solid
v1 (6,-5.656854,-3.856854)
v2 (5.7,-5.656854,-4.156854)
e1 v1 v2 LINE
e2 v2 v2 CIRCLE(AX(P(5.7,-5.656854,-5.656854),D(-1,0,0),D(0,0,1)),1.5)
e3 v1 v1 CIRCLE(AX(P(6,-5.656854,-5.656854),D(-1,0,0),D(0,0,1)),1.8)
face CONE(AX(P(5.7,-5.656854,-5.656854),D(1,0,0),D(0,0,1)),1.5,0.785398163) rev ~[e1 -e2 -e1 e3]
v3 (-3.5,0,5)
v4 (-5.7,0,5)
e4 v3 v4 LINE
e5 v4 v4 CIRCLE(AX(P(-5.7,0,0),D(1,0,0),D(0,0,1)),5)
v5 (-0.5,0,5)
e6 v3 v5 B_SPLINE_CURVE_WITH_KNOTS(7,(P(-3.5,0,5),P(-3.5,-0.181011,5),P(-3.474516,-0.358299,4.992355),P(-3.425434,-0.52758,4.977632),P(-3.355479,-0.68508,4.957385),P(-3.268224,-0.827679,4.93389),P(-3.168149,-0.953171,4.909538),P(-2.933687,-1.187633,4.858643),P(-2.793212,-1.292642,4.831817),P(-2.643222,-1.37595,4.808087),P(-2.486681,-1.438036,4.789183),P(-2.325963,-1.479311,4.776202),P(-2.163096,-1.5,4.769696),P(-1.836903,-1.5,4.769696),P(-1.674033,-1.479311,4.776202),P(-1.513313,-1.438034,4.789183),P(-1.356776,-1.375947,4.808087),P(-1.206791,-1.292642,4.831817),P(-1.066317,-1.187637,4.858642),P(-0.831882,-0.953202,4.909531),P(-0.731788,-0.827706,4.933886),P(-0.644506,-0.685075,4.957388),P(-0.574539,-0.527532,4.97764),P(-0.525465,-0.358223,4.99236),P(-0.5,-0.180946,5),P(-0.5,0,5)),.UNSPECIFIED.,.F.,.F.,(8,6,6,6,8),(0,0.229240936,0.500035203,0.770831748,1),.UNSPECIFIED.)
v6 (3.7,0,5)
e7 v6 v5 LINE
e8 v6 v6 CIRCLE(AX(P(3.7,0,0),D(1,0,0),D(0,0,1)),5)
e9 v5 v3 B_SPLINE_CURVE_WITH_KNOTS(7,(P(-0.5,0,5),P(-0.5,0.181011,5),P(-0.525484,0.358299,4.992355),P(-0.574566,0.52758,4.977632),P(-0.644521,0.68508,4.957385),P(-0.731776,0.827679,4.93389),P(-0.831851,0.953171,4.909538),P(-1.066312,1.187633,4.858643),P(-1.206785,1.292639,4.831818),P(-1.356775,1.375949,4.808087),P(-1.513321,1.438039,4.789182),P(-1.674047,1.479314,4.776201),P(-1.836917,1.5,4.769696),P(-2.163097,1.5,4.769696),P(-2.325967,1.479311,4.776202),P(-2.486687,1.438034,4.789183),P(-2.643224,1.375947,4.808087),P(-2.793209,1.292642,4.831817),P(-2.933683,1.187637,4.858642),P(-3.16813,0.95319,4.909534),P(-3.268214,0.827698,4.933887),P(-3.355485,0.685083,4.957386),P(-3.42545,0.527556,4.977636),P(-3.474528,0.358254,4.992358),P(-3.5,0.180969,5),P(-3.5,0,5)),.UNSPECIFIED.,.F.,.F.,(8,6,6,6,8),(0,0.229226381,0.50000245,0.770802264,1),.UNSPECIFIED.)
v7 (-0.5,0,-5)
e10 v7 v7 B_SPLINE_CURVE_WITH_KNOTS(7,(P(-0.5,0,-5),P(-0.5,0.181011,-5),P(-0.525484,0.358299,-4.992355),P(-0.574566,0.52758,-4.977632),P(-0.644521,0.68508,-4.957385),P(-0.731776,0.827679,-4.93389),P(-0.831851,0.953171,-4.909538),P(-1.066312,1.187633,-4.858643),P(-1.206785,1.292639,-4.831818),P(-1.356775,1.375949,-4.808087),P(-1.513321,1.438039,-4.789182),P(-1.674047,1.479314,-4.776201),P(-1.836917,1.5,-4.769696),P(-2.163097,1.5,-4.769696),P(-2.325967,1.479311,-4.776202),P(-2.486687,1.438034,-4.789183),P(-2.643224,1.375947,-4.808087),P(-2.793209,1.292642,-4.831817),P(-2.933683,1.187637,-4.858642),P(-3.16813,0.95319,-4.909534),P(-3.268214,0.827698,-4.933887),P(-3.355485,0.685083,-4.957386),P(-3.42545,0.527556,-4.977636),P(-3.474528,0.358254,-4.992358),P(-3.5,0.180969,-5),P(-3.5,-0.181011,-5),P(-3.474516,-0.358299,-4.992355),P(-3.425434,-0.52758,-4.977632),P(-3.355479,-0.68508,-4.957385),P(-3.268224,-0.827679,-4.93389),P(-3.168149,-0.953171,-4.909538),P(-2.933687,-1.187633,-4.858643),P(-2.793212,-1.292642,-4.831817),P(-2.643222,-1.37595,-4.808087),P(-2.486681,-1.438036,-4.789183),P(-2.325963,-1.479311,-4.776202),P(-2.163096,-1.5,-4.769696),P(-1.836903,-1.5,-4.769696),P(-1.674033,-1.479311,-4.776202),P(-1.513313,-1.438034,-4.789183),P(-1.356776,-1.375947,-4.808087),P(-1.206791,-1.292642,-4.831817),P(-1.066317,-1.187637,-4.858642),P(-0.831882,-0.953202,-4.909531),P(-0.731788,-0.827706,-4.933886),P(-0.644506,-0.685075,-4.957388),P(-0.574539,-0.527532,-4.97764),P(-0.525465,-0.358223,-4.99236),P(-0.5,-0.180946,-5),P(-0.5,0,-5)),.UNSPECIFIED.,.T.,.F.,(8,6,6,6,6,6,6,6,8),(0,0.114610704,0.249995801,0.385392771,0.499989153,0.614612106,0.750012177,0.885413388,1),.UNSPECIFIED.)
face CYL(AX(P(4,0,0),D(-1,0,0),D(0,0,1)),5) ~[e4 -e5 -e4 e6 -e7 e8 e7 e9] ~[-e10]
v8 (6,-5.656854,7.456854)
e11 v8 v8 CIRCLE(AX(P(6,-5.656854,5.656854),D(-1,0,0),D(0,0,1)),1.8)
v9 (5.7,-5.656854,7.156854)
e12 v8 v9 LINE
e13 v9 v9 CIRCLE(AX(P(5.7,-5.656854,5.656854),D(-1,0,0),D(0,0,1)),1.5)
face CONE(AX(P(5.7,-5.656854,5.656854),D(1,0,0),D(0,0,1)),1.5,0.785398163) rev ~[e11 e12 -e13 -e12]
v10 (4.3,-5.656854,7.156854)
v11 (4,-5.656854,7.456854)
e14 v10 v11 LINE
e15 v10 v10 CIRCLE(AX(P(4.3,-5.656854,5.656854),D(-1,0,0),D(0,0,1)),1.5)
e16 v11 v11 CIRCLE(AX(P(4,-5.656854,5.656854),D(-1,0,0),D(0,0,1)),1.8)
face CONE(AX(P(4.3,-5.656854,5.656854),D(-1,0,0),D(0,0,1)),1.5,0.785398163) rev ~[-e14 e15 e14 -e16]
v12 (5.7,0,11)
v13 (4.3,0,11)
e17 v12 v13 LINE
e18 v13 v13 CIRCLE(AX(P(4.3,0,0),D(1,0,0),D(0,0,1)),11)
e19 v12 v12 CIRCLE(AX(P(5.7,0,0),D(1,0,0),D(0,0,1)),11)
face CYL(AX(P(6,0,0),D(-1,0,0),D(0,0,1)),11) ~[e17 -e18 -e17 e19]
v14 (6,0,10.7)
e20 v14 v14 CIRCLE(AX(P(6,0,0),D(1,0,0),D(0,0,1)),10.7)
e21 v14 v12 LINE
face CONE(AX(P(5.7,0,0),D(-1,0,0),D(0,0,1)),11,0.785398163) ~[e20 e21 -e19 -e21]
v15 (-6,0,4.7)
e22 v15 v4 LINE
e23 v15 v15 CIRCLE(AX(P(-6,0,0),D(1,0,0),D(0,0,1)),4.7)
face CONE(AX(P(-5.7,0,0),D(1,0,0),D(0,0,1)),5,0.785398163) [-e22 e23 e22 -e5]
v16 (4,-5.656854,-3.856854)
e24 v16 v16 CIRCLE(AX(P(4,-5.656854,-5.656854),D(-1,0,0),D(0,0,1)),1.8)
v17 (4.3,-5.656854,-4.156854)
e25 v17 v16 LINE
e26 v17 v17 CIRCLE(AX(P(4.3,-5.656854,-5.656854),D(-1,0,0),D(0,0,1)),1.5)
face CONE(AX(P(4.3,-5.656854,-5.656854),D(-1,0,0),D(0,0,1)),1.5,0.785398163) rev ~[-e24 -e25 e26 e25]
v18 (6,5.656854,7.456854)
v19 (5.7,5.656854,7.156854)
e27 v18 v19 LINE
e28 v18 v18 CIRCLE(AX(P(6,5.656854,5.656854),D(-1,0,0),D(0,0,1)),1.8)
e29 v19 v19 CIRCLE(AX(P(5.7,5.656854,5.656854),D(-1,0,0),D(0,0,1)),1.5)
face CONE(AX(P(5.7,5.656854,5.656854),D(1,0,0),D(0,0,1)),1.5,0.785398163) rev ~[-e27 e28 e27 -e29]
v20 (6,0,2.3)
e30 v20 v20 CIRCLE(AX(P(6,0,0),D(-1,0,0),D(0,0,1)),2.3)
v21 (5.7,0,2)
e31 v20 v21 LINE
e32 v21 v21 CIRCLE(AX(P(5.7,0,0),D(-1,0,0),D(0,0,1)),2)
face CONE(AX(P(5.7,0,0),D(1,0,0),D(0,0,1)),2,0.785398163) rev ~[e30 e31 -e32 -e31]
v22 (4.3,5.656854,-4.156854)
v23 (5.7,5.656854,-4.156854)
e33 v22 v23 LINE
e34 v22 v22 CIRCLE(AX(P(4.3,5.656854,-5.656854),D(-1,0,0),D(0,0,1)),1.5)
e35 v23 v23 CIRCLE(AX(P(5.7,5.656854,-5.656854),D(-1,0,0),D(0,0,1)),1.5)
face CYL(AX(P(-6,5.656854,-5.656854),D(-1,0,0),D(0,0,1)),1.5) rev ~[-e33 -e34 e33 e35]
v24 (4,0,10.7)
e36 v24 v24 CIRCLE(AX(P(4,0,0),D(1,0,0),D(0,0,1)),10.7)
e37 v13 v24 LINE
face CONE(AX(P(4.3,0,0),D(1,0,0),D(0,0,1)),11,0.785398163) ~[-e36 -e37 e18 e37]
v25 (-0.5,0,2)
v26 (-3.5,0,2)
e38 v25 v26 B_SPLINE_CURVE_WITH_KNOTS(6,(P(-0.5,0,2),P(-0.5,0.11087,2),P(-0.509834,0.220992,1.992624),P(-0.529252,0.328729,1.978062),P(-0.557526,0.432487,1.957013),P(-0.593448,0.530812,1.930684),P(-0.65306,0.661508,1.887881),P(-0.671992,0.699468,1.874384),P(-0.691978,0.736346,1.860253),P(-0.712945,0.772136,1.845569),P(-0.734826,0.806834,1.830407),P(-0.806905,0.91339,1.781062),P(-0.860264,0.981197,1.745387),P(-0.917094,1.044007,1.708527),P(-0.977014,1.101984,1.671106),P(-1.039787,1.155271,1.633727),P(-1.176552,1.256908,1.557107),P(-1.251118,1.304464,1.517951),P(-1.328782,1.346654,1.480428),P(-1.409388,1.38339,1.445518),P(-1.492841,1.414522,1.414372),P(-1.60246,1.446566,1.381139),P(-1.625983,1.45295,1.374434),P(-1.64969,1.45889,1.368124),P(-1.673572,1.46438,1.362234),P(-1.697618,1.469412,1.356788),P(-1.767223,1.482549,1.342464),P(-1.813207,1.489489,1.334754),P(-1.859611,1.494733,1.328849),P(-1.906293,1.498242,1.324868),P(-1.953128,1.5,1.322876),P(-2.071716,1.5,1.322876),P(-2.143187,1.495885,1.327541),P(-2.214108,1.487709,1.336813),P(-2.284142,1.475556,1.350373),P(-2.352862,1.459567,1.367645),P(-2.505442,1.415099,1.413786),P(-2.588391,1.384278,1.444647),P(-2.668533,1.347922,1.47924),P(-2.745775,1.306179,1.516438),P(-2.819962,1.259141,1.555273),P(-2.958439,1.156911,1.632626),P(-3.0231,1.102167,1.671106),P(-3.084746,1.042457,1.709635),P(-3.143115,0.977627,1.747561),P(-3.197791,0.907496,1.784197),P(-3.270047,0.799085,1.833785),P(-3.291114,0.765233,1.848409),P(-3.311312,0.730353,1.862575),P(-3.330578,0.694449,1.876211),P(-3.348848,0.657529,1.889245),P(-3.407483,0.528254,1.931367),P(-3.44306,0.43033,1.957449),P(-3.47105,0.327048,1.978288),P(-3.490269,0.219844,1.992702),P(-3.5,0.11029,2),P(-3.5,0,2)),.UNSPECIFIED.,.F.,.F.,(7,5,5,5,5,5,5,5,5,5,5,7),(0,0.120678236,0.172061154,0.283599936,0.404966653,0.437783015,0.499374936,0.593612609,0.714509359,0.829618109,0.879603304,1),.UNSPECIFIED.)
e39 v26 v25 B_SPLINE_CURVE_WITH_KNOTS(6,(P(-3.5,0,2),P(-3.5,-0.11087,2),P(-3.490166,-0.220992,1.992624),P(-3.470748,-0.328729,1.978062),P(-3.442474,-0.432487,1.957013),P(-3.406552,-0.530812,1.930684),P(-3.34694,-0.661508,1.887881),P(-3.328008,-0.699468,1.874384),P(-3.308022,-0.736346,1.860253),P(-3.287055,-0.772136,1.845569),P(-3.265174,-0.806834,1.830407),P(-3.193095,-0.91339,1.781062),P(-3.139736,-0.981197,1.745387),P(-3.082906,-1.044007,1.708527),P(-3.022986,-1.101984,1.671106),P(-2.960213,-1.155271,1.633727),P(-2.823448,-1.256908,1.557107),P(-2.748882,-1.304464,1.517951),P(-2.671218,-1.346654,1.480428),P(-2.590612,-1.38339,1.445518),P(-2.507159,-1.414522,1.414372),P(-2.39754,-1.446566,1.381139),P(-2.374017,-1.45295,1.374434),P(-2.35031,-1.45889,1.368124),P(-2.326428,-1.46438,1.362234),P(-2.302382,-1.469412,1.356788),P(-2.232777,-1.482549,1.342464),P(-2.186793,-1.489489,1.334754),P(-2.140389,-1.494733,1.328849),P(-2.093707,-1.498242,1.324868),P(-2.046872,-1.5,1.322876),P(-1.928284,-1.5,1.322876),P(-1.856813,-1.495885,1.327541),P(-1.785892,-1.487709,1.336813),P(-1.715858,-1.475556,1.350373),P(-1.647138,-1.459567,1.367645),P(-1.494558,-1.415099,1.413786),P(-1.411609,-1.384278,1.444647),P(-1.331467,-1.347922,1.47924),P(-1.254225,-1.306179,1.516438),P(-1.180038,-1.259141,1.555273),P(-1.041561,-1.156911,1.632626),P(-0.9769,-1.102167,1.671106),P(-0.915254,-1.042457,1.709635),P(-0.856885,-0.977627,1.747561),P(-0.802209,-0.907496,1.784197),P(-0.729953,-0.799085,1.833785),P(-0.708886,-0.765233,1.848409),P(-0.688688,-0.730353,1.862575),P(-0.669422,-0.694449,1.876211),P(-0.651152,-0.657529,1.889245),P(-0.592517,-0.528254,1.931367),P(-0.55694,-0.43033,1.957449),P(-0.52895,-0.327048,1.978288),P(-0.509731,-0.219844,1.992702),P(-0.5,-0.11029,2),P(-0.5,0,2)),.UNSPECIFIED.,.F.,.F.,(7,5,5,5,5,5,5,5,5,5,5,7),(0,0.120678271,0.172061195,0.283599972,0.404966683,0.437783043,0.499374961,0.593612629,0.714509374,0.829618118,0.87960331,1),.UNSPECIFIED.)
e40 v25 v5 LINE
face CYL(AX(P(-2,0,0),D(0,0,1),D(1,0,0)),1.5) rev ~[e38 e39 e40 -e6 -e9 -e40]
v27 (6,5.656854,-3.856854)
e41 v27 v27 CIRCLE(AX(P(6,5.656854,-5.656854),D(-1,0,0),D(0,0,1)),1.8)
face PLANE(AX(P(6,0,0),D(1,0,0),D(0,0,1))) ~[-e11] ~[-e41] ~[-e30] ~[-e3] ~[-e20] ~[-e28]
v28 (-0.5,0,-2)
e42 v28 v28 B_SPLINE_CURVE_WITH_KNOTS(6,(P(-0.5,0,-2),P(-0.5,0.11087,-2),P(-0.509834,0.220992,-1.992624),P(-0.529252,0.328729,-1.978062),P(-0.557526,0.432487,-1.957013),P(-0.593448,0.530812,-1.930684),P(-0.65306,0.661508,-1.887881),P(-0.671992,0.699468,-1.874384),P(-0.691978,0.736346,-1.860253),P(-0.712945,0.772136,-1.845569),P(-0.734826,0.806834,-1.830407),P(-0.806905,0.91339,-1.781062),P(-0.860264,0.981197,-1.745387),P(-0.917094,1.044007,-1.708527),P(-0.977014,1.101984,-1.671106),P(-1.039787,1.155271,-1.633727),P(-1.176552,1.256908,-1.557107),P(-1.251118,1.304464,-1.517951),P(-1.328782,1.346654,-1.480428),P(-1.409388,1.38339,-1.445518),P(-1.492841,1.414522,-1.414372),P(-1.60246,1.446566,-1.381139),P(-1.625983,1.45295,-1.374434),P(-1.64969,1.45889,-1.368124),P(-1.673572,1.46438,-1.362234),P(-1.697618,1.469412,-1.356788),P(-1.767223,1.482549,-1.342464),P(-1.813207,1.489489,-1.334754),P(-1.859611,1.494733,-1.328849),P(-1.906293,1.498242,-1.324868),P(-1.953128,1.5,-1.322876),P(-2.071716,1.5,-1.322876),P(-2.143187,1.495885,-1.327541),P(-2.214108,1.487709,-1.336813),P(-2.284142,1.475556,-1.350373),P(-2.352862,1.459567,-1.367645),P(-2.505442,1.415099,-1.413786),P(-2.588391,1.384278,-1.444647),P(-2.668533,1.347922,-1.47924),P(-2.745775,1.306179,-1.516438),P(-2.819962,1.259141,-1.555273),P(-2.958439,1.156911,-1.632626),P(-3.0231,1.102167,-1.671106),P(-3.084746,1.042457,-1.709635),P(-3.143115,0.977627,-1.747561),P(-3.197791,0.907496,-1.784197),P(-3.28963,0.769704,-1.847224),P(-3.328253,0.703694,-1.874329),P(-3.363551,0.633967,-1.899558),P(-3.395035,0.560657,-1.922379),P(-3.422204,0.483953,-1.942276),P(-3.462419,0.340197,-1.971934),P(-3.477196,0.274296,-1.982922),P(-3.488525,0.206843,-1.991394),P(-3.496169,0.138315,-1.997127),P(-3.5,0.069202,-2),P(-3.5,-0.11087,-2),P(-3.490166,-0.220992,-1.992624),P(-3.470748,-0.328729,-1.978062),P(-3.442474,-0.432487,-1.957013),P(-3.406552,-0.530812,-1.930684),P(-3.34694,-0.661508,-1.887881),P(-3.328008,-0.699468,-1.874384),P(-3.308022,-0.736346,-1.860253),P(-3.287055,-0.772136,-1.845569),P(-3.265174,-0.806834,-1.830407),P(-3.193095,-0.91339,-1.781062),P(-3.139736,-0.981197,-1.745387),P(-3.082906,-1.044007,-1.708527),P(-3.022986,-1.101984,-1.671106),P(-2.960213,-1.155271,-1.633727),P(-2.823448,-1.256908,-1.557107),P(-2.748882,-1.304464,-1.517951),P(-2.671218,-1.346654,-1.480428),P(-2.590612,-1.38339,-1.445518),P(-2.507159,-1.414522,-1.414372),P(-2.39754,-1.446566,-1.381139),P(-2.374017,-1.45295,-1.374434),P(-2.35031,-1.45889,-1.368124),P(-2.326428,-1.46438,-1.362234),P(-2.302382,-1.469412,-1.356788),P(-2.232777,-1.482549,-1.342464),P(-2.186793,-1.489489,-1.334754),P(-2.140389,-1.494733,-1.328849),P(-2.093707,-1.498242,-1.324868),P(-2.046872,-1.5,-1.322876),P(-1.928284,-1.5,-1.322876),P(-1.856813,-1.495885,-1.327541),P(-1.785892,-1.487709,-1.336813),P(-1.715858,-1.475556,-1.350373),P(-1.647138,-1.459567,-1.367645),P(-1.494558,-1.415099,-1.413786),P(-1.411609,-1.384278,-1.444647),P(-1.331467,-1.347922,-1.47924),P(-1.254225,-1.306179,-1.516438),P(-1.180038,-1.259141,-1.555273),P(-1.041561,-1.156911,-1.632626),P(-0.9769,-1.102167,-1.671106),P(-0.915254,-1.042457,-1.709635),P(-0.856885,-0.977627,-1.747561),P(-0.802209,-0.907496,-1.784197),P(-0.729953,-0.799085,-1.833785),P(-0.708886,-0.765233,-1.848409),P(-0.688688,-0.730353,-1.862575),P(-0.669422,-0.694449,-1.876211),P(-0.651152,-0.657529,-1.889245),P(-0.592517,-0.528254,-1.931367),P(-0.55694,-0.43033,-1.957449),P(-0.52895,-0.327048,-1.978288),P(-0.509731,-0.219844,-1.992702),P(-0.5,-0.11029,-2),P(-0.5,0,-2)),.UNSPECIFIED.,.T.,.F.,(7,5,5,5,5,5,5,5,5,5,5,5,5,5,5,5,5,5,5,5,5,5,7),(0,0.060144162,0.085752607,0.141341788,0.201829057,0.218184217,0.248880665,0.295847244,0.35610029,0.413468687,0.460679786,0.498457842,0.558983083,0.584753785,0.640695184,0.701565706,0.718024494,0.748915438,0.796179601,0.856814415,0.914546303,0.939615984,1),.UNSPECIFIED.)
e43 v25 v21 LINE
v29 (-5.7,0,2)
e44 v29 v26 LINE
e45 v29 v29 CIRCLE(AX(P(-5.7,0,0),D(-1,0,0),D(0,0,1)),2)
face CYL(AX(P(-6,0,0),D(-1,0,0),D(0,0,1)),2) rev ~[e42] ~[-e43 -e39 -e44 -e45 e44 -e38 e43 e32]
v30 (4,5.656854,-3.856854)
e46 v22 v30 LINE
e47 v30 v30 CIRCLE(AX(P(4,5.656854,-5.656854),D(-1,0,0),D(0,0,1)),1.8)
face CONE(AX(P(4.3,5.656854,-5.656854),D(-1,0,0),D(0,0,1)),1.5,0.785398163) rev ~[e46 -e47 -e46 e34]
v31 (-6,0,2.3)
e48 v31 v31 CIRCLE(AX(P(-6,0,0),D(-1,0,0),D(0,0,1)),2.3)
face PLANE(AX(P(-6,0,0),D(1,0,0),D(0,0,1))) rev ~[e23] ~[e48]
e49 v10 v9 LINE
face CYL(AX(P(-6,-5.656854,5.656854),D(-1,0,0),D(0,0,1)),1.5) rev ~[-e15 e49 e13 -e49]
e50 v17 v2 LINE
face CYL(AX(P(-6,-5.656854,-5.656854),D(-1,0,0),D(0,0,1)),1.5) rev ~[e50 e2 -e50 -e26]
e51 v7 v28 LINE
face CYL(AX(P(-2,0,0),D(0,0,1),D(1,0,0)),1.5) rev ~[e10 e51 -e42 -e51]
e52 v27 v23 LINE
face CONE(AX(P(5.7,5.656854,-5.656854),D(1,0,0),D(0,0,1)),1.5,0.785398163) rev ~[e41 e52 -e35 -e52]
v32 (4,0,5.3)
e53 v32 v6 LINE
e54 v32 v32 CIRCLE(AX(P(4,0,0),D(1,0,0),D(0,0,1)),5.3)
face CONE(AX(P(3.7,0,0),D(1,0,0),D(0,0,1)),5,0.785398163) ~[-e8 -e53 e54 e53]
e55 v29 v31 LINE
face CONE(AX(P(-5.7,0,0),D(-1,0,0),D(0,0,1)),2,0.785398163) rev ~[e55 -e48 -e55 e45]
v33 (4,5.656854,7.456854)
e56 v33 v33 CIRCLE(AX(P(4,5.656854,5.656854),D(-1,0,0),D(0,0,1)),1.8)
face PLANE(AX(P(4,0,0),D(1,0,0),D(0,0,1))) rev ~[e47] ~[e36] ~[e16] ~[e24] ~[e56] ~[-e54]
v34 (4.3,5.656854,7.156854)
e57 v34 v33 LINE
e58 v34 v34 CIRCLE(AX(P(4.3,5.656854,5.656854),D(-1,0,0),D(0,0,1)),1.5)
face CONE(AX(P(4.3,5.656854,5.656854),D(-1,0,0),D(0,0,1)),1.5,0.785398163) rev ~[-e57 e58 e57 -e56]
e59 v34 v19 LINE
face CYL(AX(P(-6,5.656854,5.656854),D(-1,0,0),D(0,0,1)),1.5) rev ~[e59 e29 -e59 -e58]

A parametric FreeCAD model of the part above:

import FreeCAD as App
import Part
import Sketcher
from FreeCAD import Vector


def edges_at(feature, points):
    """Names of the edges that pass closest to the given points."""
    edges = feature.Shape.Edges
    near = lambda p: min(range(len(edges)), key=lambda i: edges[i].distToShape(Part.Vertex(*p))[0])
    return sorted({f"Edge{near(p) + 1}" for p in points})


def add_polygon(sketch, points):
    """Adds a closed chain of lines whose ends are joined by coincident constraints."""
    first, n = sketch.GeometryCount, len(points)
    for a, b in zip(points, points[1:] + points[:1]):
        sketch.addGeometry(Part.LineSegment(App.Vector(*a, 0), App.Vector(*b, 0)), False)
    for i in range(n):
        sketch.addConstraint(Sketcher.Constraint("Coincident", first + i, 2, first + (i + 1) % n, 1))

doc = App.newDocument("Part")
params = doc.addObject("Spreadsheet::Sheet", "Params")
for row, (alias, value) in enumerate([
    ("sketch1_width", "12 mm"),
    ("sketch1_width2", "2 mm"),
    ("sketch1_height", "11 mm"),
    ("sketch1_height2", "6 mm"),
    ("revolution_angle", "360 deg"),
    ("sketch2_diameter", "4 mm"),
    ("sketch2_diameter2", "3 mm"),
    ("pocket1_length", "12 mm"),
    ("chamfer_size", "0.3 mm"),
    ("sketch3_diameter", "3 mm"),
    ("pocket2_length", "12 mm"),
], start=1):
    params.set(f"A{row}", alias)
    params.set(f"B{row}", "=" + value)
    params.setAlias(f"B{row}", alias)

body = doc.addObject("PartDesign::Body", "Body")

sketch1 = body.newObject("Sketcher::SketchObject", "Sketch")
sketch1.AttachmentSupport = (doc.getObject("XY_Plane"), [""])
sketch1.MapMode = "FlatFace"
add_polygon(sketch1, [(-6, 0), (6, 0), (6, 11), (4, 11), (4, 5), (-6, 5)])
sketch1.addConstraint([
    Sketcher.Constraint("Horizontal", 0),
    Sketcher.Constraint("Vertical", 1),
    Sketcher.Constraint("Horizontal", 2),
    Sketcher.Constraint("Vertical", 3),
    Sketcher.Constraint("Horizontal", 4),
    Sketcher.Constraint("Vertical", 5),
    Sketcher.Constraint("Symmetric", 0, 2, 5, 2, -1, 1),
    Sketcher.Constraint("DistanceX", 0, 1, 0, 2, 12.0),
    Sketcher.Constraint("DistanceX", 2, 2, 2, 1, 2.0),
    Sketcher.Constraint("DistanceY", 1, 1, 1, 2, 11.0),
    Sketcher.Constraint("DistanceY", 3, 2, 3, 1, 6.0),
])
sketch1.setExpression("Constraints[13]", "Params.sketch1_width")
sketch1.setExpression("Constraints[14]", "Params.sketch1_width2")
sketch1.setExpression("Constraints[15]", "Params.sketch1_height")
sketch1.setExpression("Constraints[16]", "Params.sketch1_height2")
revolution = body.newObject("PartDesign::Revolution", "Revolution")
revolution.Profile = sketch1
revolution.ReferenceAxis = (sketch1, ["H_Axis"])
revolution.setExpression("Angle", "Params.revolution_angle")

sketch2 = body.newObject("Sketcher::SketchObject", "Sketch001")
sketch2.AttachmentSupport = (doc.getObject("YZ_Plane"), [""])
sketch2.MapMode = "FlatFace"
sketch2.AttachmentOffset = App.Placement(Vector(0, 0, -6), App.Rotation())
sketch2.addGeometry([
    Part.Circle(Vector(0, 0, 0), Vector(0, 0, 1), 2),
    Part.Circle(Vector(5.656854, -5.656854, 0), Vector(0, 0, 1), 1.5),
    Part.Circle(Vector(5.656854, 5.656854, 0), Vector(0, 0, 1), 1.5),
    Part.Circle(Vector(-5.656854, 5.656854, 0), Vector(0, 0, 1), 1.5),
    Part.Circle(Vector(-5.656854, -5.656854, 0), Vector(0, 0, 1), 1.5),
], False)
sketch2.addConstraint([
    Sketcher.Constraint("Coincident", 0, 3, -1, 1),
    Sketcher.Constraint("Equal", 1, 2),
    Sketcher.Constraint("Equal", 2, 3),
    Sketcher.Constraint("Equal", 3, 4),
    Sketcher.Constraint("Symmetric", 1, 3, 3, 3, -1, 1),
    Sketcher.Constraint("Symmetric", 2, 3, 4, 3, -1, 1),
    Sketcher.Constraint("Symmetric", 2, 3, 3, 3, -2),
    Sketcher.Constraint("Diameter", 0, 4.0),
    Sketcher.Constraint("Diameter", 1, 3.0),
    Sketcher.Constraint("DistanceY", 1, 3, 2, 3, 11.313708),
    Sketcher.Constraint("DistanceX", 3, 3, 2, 3, 11.313708),
])
sketch2.setExpression("Constraints[7]", "Params.sketch2_diameter")
sketch2.setExpression("Constraints[8]", "Params.sketch2_diameter2")
pocket1 = body.newObject("PartDesign::Pocket", "Pocket")
pocket1.Profile = sketch2
pocket1.setExpression("Length", "Params.pocket1_length")
pocket1.Reversed = True
doc.recompute()

chamfer = body.newObject("PartDesign::Chamfer", "Chamfer")
chamfer.Base = (pocket1, edges_at(pocket1, [
    (6, -5.657, -7.157),
    (4, -5.657, -7.157),
    (6, -5.657, 4.157),
    (4, -5.657, 4.157),
    (6, 5.657, 4.157),
    (4, 5.657, 4.157),
    (6, 5.657, -7.157),
    (4, 5.657, -7.157),
    (6, 0, -2),
    (-6, 0, -2),
    (4, 0, -5),
    (4, 0, -11),
    (6, 0, -11),
    (-6, 0, -5),
]))
chamfer.setExpression("Size", "Params.chamfer_size")

sketch3 = body.newObject("Sketcher::SketchObject", "Sketch002")
sketch3.AttachmentSupport = (doc.getObject("XY_Plane"), [""])
sketch3.MapMode = "FlatFace"
sketch3.addGeometry(Part.Circle(Vector(-2, 0, 0), Vector(0, 0, 1), 1.5), False)
sketch3.addConstraint([
    Sketcher.Constraint("PointOnObject", 0, 3, -1),
    Sketcher.Constraint("Diameter", 0, 3.0),
    Sketcher.Constraint("DistanceX", 0, 3, -1, 1, 2.0),
])
sketch3.setExpression("Constraints[1]", "Params.sketch3_diameter")
pocket2 = body.newObject("PartDesign::Pocket", "Pocket001")
pocket2.Profile = sketch3
pocket2.setExpression("Length", "Params.pocket2_length")
pocket2.Midplane = True

doc.recompute()
